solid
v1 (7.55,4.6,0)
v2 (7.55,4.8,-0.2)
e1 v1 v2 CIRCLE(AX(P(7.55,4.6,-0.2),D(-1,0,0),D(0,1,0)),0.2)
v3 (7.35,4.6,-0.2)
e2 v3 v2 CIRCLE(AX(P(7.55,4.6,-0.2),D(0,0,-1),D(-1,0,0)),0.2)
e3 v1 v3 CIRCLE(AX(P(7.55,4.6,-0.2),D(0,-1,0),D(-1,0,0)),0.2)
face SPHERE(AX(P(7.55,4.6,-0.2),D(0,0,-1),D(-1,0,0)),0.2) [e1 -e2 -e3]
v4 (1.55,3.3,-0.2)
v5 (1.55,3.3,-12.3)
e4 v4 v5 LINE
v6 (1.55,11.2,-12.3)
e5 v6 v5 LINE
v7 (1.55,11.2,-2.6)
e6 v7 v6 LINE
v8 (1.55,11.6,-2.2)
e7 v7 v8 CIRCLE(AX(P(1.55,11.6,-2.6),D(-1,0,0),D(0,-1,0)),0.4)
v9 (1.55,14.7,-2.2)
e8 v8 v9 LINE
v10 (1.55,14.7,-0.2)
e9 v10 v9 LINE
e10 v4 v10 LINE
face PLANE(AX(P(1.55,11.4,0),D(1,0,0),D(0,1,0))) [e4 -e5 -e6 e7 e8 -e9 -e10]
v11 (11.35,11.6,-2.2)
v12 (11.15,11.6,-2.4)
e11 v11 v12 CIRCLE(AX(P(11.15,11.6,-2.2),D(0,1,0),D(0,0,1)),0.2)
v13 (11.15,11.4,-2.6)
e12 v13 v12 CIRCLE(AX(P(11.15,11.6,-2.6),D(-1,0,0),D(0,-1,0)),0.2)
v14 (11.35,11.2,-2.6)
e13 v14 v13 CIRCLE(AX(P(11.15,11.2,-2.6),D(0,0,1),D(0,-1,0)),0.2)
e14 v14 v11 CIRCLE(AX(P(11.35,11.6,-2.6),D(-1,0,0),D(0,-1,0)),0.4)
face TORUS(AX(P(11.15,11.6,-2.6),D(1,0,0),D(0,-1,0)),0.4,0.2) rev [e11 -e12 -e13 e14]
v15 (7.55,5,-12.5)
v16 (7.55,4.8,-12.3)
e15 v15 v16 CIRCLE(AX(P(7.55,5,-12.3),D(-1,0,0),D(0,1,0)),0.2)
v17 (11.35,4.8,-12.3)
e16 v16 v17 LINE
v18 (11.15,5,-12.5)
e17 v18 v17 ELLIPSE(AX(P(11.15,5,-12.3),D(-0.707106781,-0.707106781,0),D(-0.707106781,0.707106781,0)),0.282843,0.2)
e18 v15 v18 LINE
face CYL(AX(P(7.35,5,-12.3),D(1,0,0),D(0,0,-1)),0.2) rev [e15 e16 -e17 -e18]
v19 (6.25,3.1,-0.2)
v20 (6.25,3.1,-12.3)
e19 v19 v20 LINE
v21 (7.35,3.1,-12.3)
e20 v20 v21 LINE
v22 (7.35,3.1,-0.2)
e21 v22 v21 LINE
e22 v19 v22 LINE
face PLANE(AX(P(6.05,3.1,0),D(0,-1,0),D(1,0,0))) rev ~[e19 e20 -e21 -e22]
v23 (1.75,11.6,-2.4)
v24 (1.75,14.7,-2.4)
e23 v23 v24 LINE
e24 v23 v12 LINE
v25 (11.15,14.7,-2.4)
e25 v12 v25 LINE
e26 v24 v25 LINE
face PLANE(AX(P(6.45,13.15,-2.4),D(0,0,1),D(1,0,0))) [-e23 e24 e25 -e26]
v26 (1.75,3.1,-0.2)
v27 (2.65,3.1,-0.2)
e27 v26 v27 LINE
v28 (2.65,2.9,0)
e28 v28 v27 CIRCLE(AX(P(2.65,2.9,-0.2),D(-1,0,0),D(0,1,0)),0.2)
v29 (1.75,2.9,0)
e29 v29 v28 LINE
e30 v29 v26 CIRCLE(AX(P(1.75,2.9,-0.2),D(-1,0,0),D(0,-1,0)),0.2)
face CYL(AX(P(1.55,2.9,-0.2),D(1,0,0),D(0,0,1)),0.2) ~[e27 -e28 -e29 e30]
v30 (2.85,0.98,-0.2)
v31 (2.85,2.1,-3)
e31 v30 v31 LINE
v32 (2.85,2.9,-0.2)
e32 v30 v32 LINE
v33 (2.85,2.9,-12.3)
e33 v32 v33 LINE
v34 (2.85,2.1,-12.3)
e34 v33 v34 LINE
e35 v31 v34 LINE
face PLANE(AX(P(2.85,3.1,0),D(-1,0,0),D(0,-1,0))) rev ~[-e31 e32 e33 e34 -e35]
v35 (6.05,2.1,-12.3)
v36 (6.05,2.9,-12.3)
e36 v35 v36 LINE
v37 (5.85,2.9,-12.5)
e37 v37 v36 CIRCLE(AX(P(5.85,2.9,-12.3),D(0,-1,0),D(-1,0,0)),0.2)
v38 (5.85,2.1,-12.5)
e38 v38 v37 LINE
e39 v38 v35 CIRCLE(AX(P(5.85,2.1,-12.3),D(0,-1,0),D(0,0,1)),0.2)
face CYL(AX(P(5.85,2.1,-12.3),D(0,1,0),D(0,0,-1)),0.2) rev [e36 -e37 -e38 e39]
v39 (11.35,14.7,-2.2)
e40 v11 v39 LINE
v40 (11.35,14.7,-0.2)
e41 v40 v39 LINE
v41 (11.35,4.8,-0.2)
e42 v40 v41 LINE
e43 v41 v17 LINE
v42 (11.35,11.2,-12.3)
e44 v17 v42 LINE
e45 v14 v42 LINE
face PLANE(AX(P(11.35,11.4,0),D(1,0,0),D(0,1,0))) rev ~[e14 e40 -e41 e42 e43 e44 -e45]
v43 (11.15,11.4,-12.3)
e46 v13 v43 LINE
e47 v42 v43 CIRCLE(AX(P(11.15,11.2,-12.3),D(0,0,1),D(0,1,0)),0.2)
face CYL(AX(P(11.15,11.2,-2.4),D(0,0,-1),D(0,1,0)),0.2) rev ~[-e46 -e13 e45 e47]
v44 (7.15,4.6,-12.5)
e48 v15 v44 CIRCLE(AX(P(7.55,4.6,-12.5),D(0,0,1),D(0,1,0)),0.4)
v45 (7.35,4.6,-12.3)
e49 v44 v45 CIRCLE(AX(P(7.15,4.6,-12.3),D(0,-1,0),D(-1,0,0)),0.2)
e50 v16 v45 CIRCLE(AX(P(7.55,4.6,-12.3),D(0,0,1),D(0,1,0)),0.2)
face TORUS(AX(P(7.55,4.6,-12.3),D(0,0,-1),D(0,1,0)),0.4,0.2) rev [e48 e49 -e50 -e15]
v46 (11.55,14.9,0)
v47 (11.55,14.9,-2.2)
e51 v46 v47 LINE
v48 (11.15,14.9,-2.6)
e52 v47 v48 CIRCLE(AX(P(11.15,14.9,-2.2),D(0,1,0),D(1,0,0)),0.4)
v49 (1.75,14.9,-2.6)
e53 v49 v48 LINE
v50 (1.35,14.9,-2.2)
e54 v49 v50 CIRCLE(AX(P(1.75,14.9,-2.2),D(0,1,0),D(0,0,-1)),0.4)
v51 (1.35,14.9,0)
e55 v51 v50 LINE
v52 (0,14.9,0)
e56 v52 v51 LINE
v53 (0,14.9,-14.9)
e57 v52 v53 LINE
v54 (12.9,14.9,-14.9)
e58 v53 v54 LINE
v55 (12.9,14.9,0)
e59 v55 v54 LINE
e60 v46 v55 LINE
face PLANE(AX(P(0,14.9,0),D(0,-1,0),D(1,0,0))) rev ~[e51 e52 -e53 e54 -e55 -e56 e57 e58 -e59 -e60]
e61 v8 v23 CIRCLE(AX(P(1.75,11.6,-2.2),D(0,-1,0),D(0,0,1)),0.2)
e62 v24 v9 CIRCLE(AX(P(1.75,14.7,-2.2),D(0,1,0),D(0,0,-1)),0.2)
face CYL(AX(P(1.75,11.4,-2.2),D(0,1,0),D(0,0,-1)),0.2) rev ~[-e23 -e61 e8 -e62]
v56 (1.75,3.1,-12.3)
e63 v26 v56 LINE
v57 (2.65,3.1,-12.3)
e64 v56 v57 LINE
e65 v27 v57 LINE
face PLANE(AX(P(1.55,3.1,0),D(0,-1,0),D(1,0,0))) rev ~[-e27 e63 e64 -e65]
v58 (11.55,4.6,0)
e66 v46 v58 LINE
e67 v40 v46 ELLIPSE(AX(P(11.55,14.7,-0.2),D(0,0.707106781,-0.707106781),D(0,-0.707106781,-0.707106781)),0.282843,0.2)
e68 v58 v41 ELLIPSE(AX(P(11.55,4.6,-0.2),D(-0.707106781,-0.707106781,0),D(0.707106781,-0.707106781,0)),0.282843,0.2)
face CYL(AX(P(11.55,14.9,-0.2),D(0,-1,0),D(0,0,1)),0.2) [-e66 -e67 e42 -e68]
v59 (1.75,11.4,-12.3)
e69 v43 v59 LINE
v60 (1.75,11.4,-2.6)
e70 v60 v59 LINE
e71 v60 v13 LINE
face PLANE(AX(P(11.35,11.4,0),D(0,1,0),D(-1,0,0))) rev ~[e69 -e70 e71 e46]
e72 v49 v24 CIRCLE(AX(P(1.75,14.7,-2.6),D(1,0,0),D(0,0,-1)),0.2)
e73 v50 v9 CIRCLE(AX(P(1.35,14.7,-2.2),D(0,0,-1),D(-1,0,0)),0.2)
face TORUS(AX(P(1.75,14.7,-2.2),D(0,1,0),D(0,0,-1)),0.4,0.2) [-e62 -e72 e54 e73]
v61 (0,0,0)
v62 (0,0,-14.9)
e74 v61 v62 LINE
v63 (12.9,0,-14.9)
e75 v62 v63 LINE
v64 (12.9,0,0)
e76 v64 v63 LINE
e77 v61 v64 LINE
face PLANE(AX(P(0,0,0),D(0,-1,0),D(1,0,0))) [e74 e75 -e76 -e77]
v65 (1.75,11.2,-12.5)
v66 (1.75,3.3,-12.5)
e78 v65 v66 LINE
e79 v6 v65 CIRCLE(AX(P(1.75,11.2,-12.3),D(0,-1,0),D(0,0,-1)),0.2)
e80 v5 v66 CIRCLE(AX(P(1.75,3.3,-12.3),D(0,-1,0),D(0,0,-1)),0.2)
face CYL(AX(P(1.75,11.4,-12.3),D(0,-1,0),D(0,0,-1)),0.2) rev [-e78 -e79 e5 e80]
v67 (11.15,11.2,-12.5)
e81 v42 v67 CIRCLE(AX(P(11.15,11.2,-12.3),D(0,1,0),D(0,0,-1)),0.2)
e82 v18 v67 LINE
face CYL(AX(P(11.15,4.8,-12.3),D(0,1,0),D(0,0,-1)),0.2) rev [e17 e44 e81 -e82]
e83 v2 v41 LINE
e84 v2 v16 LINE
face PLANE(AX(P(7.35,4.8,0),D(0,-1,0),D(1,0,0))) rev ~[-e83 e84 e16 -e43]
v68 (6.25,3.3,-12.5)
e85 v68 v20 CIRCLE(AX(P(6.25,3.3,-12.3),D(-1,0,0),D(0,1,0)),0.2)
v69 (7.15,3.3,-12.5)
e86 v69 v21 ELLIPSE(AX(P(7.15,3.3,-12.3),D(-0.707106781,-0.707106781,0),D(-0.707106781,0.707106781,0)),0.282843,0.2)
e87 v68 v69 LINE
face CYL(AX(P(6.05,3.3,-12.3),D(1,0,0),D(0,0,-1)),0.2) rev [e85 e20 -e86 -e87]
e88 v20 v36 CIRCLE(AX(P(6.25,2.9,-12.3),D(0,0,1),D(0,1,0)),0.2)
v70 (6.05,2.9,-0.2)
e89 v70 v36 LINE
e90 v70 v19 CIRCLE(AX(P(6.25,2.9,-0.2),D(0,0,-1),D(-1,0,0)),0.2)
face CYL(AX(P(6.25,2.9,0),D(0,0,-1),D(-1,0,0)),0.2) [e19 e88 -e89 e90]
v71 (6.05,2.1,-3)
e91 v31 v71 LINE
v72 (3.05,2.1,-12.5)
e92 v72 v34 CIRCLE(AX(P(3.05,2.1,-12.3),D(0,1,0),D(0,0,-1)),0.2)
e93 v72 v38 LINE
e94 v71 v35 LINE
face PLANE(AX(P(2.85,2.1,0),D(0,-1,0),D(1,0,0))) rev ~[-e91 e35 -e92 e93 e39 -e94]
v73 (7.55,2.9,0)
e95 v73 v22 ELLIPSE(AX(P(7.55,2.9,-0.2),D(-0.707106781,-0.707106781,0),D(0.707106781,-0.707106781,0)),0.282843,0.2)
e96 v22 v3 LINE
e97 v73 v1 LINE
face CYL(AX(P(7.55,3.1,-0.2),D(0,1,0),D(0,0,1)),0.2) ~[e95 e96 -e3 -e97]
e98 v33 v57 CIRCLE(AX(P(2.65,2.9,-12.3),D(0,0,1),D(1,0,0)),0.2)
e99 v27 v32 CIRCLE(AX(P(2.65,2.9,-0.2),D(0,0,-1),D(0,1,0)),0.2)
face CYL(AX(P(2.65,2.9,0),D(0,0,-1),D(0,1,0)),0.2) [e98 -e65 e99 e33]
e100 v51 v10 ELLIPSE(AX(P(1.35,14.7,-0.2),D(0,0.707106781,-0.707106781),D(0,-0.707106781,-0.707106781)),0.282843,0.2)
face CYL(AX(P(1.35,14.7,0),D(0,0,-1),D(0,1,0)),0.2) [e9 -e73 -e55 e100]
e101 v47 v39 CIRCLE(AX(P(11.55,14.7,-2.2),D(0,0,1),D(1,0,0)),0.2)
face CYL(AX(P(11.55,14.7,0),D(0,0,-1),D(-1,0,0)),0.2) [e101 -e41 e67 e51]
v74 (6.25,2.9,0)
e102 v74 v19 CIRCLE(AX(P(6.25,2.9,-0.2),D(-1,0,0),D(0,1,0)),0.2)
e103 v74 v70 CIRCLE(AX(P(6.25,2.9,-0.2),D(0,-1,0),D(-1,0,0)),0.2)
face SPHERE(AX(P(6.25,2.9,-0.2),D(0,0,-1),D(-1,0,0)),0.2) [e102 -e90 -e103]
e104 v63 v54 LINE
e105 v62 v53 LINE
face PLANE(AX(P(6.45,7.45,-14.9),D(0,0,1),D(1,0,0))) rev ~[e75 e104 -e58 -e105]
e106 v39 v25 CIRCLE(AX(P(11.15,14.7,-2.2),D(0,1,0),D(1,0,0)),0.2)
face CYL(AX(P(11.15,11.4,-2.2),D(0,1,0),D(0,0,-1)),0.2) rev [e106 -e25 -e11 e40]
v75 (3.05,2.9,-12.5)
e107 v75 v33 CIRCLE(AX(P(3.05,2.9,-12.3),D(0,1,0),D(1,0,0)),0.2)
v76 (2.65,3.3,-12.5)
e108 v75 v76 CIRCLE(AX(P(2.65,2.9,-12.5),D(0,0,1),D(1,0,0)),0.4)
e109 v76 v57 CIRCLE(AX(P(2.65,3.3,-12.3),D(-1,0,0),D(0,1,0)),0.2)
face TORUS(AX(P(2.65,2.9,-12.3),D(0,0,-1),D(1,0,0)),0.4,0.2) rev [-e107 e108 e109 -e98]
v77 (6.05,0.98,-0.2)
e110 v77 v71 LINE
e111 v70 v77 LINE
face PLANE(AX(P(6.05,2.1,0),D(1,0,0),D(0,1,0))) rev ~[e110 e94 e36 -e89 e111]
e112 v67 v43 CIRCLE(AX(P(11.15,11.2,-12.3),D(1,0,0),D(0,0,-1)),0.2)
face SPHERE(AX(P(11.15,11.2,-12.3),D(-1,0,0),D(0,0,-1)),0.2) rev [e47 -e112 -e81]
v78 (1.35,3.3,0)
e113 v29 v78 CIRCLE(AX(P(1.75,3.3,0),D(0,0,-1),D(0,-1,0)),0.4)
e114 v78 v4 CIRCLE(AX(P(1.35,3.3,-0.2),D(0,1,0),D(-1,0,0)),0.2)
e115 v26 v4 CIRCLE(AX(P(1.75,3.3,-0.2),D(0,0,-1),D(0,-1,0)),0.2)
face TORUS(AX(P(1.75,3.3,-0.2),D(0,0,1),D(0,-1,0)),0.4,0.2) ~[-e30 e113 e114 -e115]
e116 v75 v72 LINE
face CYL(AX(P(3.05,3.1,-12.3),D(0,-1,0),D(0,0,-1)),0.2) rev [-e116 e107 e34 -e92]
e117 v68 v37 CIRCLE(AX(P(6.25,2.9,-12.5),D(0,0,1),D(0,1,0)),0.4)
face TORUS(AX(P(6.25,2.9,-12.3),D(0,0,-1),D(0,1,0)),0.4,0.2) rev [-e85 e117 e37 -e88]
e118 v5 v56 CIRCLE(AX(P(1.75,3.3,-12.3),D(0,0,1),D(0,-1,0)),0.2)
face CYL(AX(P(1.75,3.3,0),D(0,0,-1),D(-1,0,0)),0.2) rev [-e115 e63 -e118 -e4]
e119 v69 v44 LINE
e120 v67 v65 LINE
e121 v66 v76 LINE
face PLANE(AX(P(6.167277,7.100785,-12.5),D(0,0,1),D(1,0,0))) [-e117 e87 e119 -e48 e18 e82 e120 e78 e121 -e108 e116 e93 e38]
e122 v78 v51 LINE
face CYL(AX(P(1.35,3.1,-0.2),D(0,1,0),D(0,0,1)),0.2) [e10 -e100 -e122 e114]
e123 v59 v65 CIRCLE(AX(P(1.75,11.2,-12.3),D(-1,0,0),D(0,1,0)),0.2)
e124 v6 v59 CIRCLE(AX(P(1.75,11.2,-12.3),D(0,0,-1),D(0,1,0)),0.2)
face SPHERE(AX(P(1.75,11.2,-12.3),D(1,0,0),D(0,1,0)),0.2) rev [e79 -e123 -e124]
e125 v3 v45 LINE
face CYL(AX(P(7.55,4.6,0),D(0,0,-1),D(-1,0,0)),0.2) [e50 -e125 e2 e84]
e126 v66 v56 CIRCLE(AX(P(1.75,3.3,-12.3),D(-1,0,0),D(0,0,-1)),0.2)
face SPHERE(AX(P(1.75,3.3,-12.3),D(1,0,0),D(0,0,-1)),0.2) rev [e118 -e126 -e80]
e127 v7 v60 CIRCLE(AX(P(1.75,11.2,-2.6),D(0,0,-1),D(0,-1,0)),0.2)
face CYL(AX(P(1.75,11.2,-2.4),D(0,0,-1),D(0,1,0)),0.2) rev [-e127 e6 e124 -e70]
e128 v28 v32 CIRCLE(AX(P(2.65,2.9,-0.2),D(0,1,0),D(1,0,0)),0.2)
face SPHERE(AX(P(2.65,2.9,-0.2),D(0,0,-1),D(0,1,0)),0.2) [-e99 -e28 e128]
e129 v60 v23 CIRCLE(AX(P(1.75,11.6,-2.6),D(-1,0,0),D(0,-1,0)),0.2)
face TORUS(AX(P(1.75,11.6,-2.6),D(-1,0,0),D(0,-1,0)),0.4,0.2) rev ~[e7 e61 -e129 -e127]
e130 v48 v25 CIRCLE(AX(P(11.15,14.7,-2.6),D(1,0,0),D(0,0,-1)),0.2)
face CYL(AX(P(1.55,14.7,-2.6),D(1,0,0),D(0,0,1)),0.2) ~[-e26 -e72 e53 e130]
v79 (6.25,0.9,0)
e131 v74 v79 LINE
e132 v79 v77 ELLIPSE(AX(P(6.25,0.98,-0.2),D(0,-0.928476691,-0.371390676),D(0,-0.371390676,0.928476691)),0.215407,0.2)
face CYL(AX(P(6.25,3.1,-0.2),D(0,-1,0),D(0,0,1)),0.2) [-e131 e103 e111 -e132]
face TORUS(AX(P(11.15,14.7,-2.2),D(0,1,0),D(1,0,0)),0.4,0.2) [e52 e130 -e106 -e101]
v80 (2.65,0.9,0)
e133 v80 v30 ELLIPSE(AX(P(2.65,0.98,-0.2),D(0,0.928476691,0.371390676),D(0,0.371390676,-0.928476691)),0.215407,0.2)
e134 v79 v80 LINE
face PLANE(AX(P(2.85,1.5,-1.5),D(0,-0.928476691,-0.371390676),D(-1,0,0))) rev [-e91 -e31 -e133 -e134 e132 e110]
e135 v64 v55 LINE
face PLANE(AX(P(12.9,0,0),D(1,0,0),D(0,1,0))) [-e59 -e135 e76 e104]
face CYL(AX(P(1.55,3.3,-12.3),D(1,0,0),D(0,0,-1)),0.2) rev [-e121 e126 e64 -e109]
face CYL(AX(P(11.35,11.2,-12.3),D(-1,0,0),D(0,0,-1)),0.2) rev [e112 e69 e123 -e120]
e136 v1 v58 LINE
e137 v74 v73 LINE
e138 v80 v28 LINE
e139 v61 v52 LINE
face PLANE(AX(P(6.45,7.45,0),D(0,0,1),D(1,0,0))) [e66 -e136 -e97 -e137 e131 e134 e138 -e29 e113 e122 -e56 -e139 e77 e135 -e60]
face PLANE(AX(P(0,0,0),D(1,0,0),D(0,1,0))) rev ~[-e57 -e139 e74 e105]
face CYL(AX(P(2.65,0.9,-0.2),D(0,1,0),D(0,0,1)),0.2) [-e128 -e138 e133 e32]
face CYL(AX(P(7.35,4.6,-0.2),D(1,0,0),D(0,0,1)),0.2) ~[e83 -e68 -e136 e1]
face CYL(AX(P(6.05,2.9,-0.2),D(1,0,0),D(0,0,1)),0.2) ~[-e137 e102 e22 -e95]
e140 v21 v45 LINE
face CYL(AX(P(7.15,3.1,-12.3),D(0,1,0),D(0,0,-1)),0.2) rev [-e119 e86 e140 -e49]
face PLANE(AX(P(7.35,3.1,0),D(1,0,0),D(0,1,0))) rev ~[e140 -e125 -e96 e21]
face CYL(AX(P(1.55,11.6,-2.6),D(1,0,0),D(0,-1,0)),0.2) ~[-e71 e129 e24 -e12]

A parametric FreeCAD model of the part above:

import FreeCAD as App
import Part
import Sketcher

V = App.Vector


def edges_at(feature, points):
    """Names of the edges that pass closest to the given points."""
    edges = feature.Shape.Edges
    near = lambda p: min(range(len(edges)), key=lambda i: edges[i].distToShape(Part.Vertex(*p))[0])
    return sorted({f"Edge{near(p) + 1}" for p in points})


def add_polygon(sketch, points):
    """Adds a closed chain of lines whose ends are joined by coincident constraints."""
    first, n = sketch.GeometryCount, len(points)
    for a, b in zip(points, points[1:] + points[:1]):
        sketch.addGeometry(Part.LineSegment(App.Vector(*a, 0), App.Vector(*b, 0)), False)
    for i in range(n):
        sketch.addConstraint(Sketcher.Constraint("Coincident", first + i, 2, first + (i + 1) % n, 1))

doc = App.newDocument("Part")
params = doc.addObject("Spreadsheet::Sheet", "Params")
for row, (alias, value) in enumerate([
    ("sketch1_width", "12.9 mm"),
    ("sketch1_height", "14.9 mm"),
    ("pad1_length", "14.9 mm"),
    ("sketch2_width", "9.8 mm"),
    ("sketch2_height", "3.5 mm"),
    ("pocket1_length", "2.4 mm"),
    ("sketch3_width", "4 mm"),
    ("sketch3_height", "1 mm"),
    ("sketch3_width2", "1.3 mm"),
    ("sketch3_width3", "3.2 mm"),
    ("sketch3_height2", "8.3 mm"),
    ("pocket2_length", "12.5 mm"),
    ("chamfer_size", "1.2 mm"),
    ("chamfer_size2", "3 mm"),
    ("fillet_radius", "0.2 mm"),
], start=1):
    params.set(f"A{row}", alias)
    params.set(f"B{row}", "=" + value)
    params.setAlias(f"B{row}", alias)

body = doc.addObject("PartDesign::Body", "Body")

# Sketch on XY plane
sketch1 = body.newObject("Sketcher::SketchObject", "Sketch")
sketch1.AttachmentSupport = (doc.getObject("XY_Plane"), [""])
sketch1.MapMode = "FlatFace"
add_polygon(sketch1, [(0, 15), (0, 0), (13, 0), (13, 15)])  # lines 0-3
sketch1.addConstraint(Sketcher.Constraint("Vertical", 0))
sketch1.addConstraint(Sketcher.Constraint("Horizontal", 1))
sketch1.addConstraint(Sketcher.Constraint("Vertical", 2))
sketch1.addConstraint(Sketcher.Constraint("Horizontal", 3))
sketch1.addConstraint(Sketcher.Constraint("Coincident", 0, 2, -1, 1))
sketch1.addConstraint(Sketcher.Constraint("DistanceX", 1, 1, 1, 2, 12.9))
sketch1.addConstraint(Sketcher.Constraint("DistanceY", 0, 2, 0, 1, 14.9))
sketch1.setExpression("Constraints[9]", "Params.sketch1_width")
sketch1.setExpression("Constraints[10]", "Params.sketch1_height")
pad1 = body.newObject("PartDesign::Pad", "Pad")
pad1.Profile = sketch1
pad1.setExpression("Length", "Params.pad1_length")
pad1.Reversed = True

# Sketch on XY plane
sketch2 = body.newObject("Sketcher::SketchObject", "Sketch001")
sketch2.AttachmentSupport = (doc.getObject("XY_Plane"), [""])
sketch2.MapMode = "FlatFace"
add_polygon(sketch2, [(1.6, 14.9), (1.6, 11.4), (11.3, 11.4), (11.3, 14.9)])  # lines 0-3
sketch2.addConstraint(Sketcher.Constraint("Vertical", 0))
sketch2.addConstraint(Sketcher.Constraint("Horizontal", 1))
sketch2.addConstraint(Sketcher.Constraint("Vertical", 2))
sketch2.addConstraint(Sketcher.Constraint("Horizontal", 3))
sketch2.addConstraint(Sketcher.Constraint("DistanceX", 1, 1, 1, 2, 9.8))
sketch2.addConstraint(Sketcher.Constraint("DistanceY", 0, 2, 0, 1, 3.5))
sketch2.addConstraint(Sketcher.Constraint("DistanceY", -1, 1, 0, 2, 11.4))
sketch2.addConstraint(Sketcher.Constraint("DistanceX", -1, 1, 0, 2, 1.55))
sketch2.setExpression("Constraints[8]", "Params.sketch2_width")
sketch2.setExpression("Constraints[9]", "Params.sketch2_height")
pocket1 = body.newObject("PartDesign::Pocket", "Pocket")
pocket1.Profile = sketch2
pocket1.setExpression("Length", "Params.pocket1_length")

# Sketch on XY plane
sketch3 = body.newObject("Sketcher::SketchObject", "Sketch002")
sketch3.AttachmentSupport = (doc.getObject("XY_Plane"), [""])
sketch3.MapMode = "FlatFace"
add_polygon(sketch3, [(1.6, 11.4), (1.6, 3.1), (2.9, 3.1), (2.9, 2.1), (6, 2.1), (6, 3.1), (7.3, 3.1), (7.3, 4.8), (11.3, 4.8), (11.3, 11.4)])  # lines 0-9
sketch3.addConstraint(Sketcher.Constraint("Vertical", 0))
sketch3.addConstraint(Sketcher.Constraint("Horizontal", 1))
sketch3.addConstraint(Sketcher.Constraint("Vertical", 2))
sketch3.addConstraint(Sketcher.Constraint("Horizontal", 3))
sketch3.addConstraint(Sketcher.Constraint("Vertical", 4))
sketch3.addConstraint(Sketcher.Constraint("Horizontal", 5))
sketch3.addConstraint(Sketcher.Constraint("Vertical", 6))
sketch3.addConstraint(Sketcher.Constraint("Horizontal", 7))
sketch3.addConstraint(Sketcher.Constraint("Vertical", 8))
sketch3.addConstraint(Sketcher.Constraint("Horizontal", 9))
sketch3.addConstraint(Sketcher.Constraint("Horizontal", 1, 2, 4, 2))
sketch3.addConstraint(Sketcher.Constraint("Equal", 1, 5))
sketch3.addConstraint(Sketcher.Constraint("DistanceX", 7, 1, 7, 2, 4.0))
sketch3.addConstraint(Sketcher.Constraint("DistanceY", 2, 2, 2, 1, 1.0))
sketch3.addConstraint(Sketcher.Constraint("DistanceX", 1, 1, 1, 2, 1.3))
sketch3.addConstraint(Sketcher.Constraint("DistanceX", 3, 1, 3, 2, 3.2))
sketch3.addConstraint(Sketcher.Constraint("DistanceY", 0, 2, 0, 1, 8.3))
sketch3.addConstraint(Sketcher.Constraint("DistanceY", 6, 1, 6, 2, 1.7))
sketch3.addConstraint(Sketcher.Constraint("DistanceY", -1, 1, 0, 2, 3.1))
sketch3.addConstraint(Sketcher.Constraint("DistanceX", -1, 1, 0, 2, 1.55))
sketch3.setExpression("Constraints[22]", "Params.sketch3_width")
sketch3.setExpression("Constraints[23]", "Params.sketch3_height")
sketch3.setExpression("Constraints[24]", "Params.sketch3_width2")
sketch3.setExpression("Constraints[25]", "Params.sketch3_width3")
sketch3.setExpression("Constraints[26]", "Params.sketch3_height2")
pocket2 = body.newObject("PartDesign::Pocket", "Pocket001")
pocket2.Profile = sketch3
pocket2.setExpression("Length", "Params.pocket2_length")
doc.recompute()

chamfer = body.newObject("PartDesign::Chamfer", "Chamfer")
chamfer.Base = (pocket2, edges_at(pocket2, [(4.45, 2.1, 0)]))
chamfer.ChamferType = "Two distances"
chamfer.setExpression("Size", "Params.chamfer_size")
chamfer.setExpression("Size2", "Params.chamfer_size2")
doc.recompute()

fillet = body.newObject("PartDesign::Fillet", "Fillet")
fillet.Base = (chamfer, edges_at(chamfer, [
    (1.55, 13.15, -2.4),
    (6.45, 14.9, -2.4),
    (1.55, 14.9, -1.2),
    (11.35, 13.15, -2.4),
    (11.35, 14.9, -1.2),
    (6.45, 11.4, -2.4),
    (1.55, 9, 0),
    (11.35, 9.85, 0),
    (6.45, 11.4, -12.5),
    (1.55, 11.4, -7.45),
    (11.35, 8.1, -12.5),
    (11.35, 11.4, -7.45),
    (9.35, 4.8, -12.5),
    (7.35, 3.95, -12.5),
    (7.35, 4.8, -6.25),
    (6.7, 3.1, -12.5),
    (6.05, 2.6, -12.5),
    (6.05, 3.1, -6.25),
    (2.85, 2.6, -12.5),
    (2.2, 3.1, -12.5),
    (2.85, 3.1, -6.25),
    (1.55, 7.25, -12.5),
    (1.55, 3.1, -6.25),
    (2.2, 3.1, 0),
    (2.85, 2, 0),
    (6.05, 2, 0),
    (6.7, 3.1, 0),
    (7.35, 3.95, 0),
    (9.35, 4.8, 0),
]))
fillet.setExpression("Radius", "Params.fillet_radius")

doc.recompute()
